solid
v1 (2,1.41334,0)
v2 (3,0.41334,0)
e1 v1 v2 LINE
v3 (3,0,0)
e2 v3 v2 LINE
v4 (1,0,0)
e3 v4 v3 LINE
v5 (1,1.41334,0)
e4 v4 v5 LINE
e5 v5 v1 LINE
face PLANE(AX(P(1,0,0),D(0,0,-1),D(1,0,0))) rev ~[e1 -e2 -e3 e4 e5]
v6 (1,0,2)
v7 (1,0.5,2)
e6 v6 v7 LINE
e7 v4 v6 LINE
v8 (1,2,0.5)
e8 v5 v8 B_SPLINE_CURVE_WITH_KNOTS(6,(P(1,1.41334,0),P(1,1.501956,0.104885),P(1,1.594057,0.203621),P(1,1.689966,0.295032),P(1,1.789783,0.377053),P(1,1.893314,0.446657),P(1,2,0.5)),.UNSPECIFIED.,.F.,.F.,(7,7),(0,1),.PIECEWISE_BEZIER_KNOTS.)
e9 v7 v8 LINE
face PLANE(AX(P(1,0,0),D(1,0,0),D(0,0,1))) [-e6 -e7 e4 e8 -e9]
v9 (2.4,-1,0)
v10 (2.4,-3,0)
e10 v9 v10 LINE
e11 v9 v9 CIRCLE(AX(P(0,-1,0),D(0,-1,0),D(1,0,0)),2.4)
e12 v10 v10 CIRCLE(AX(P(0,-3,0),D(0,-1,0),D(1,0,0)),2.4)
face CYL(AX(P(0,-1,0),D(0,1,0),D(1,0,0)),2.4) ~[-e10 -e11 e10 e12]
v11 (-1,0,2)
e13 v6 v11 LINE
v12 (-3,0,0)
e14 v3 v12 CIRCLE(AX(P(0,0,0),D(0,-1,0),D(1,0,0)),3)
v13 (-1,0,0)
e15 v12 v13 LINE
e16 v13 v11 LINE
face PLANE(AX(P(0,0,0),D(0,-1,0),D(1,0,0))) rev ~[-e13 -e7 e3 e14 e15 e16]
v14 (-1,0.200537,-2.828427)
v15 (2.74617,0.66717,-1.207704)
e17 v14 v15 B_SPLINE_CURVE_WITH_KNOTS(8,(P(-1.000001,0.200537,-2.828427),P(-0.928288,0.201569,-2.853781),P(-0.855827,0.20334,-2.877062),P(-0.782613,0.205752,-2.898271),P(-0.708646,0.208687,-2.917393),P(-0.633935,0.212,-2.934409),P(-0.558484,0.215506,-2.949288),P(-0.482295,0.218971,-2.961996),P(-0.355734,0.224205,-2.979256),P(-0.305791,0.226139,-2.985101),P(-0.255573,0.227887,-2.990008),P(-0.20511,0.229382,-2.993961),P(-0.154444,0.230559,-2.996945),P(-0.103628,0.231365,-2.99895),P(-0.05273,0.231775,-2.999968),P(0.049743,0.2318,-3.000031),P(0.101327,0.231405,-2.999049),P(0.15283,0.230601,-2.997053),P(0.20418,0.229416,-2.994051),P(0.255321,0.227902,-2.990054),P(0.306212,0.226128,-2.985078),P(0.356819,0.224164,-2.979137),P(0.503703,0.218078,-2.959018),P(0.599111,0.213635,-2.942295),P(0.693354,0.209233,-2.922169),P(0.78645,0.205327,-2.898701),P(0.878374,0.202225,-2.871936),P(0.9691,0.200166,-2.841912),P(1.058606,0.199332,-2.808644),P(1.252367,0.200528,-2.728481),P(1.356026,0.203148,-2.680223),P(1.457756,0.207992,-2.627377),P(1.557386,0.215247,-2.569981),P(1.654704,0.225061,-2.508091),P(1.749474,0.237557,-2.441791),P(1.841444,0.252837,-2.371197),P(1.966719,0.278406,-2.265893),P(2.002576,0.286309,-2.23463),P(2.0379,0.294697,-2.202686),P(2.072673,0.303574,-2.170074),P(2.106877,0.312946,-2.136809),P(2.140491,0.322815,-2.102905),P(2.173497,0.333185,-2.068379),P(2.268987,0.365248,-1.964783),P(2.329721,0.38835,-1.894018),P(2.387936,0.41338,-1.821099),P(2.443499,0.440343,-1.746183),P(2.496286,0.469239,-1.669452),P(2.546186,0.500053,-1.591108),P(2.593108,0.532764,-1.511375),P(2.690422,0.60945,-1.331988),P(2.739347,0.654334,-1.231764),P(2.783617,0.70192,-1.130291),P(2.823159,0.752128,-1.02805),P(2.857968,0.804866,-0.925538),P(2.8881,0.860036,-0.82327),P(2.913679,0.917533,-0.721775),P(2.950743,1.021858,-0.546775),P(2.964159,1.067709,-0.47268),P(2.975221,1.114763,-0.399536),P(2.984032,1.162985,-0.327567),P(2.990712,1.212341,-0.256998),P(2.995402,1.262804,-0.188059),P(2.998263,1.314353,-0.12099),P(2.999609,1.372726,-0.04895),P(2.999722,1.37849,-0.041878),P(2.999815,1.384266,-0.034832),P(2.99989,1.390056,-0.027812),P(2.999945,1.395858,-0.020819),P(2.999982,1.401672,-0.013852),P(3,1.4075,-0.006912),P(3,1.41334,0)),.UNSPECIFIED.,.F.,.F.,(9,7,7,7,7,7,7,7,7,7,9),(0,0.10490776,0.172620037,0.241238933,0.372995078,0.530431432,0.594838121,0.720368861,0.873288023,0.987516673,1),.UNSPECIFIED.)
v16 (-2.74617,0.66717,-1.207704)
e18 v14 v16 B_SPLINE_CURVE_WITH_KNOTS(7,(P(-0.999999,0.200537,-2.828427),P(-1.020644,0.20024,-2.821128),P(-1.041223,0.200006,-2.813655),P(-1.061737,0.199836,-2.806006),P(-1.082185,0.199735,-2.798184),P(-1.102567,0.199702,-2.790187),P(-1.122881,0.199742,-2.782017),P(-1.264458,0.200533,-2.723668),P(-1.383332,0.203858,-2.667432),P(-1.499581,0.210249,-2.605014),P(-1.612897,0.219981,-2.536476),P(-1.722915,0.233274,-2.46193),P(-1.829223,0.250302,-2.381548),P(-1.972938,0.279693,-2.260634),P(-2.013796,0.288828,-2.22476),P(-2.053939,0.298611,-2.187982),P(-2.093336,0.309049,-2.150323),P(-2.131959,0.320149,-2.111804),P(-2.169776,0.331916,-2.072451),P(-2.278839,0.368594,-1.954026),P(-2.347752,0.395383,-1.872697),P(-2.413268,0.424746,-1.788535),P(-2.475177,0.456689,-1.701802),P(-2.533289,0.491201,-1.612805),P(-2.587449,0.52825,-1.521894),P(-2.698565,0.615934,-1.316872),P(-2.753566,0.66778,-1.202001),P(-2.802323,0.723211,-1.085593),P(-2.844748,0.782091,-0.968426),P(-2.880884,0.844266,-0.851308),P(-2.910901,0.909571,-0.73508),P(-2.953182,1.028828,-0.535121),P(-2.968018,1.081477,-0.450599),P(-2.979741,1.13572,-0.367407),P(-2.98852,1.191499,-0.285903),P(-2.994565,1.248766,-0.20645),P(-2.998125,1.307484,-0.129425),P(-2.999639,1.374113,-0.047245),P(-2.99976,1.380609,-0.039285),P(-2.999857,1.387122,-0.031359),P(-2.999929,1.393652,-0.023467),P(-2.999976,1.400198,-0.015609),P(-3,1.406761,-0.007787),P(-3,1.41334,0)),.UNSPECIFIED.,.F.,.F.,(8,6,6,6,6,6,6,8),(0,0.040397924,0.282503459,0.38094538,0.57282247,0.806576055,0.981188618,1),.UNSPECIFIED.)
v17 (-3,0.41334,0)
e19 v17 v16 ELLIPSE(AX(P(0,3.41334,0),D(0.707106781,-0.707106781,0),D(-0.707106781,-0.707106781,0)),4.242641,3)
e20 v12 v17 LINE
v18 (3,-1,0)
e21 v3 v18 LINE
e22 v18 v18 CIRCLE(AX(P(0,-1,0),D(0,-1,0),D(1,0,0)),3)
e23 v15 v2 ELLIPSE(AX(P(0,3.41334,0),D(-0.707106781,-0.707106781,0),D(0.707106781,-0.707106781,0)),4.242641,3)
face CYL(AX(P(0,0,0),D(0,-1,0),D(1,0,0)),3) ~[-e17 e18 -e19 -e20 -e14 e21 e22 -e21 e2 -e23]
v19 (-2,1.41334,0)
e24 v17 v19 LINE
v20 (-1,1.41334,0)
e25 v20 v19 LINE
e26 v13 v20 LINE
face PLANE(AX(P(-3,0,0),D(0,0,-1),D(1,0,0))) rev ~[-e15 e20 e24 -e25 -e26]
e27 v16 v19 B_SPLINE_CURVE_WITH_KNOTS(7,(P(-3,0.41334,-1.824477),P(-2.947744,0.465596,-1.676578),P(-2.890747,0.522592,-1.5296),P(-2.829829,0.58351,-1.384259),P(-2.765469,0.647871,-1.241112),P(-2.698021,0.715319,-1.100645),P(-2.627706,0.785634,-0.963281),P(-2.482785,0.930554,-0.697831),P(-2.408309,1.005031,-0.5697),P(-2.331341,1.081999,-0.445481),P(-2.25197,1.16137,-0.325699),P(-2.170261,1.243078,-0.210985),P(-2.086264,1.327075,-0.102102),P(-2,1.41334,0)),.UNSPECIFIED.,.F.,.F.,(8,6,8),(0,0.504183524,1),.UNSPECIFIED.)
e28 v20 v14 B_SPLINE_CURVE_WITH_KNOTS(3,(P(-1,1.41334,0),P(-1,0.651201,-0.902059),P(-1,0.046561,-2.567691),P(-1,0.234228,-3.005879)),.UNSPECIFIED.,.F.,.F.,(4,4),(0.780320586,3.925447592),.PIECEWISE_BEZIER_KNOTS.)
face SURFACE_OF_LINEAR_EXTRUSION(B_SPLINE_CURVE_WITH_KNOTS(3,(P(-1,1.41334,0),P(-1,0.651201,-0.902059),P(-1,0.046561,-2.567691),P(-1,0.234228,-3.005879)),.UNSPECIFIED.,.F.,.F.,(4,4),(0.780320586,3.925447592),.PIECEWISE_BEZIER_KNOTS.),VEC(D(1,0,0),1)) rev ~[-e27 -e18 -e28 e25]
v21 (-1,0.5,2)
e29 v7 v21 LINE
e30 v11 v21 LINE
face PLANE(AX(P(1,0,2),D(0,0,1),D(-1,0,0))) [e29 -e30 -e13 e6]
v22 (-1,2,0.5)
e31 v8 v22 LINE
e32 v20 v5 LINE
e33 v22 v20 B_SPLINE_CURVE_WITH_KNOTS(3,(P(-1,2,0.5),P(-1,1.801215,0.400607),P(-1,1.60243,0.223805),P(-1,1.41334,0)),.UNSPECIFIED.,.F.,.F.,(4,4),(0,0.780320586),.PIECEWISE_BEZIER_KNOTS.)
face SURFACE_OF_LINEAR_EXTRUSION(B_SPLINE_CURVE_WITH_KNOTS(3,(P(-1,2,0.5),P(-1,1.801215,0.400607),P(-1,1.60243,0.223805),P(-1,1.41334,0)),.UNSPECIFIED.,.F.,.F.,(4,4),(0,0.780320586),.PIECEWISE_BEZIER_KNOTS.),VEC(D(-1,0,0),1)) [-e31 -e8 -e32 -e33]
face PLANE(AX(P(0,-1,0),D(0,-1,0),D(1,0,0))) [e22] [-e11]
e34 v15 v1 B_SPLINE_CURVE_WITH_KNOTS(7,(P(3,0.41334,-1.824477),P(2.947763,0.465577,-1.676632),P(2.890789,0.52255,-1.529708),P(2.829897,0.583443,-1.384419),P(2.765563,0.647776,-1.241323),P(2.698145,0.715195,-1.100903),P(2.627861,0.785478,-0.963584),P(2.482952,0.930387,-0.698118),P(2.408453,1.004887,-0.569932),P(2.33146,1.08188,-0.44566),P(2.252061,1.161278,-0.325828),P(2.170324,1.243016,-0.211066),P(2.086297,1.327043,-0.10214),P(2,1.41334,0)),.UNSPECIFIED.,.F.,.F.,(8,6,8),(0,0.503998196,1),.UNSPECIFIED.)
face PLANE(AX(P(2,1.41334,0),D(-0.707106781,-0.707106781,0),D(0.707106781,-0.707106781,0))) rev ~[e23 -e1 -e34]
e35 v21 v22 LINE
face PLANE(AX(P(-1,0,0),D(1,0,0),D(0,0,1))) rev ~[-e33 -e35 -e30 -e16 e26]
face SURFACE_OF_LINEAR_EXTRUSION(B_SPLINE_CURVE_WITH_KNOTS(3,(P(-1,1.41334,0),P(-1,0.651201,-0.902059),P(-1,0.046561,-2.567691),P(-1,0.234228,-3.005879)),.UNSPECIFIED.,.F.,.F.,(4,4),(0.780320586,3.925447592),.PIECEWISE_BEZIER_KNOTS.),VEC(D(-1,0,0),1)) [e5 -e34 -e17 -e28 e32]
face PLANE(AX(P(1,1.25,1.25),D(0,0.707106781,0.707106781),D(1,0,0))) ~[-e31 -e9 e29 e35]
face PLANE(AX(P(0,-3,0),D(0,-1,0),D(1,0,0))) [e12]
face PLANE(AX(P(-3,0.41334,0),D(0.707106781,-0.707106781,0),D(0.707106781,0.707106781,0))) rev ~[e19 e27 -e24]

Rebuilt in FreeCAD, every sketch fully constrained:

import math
import FreeCAD as App
import Part
import Sketcher
from FreeCAD import Vector
Q = App.Units.Quantity


def edges_at(feature, points):
    """Names of the edges that pass closest to the given points."""
    edges = feature.Shape.Edges
    near = lambda p: min(range(len(edges)), key=lambda i: edges[i].distToShape(Part.Vertex(*p))[0])
    return sorted({f"Edge{near(p) + 1}" for p in points})


def add_polygon(sketch, points):
    """Adds a closed chain of lines whose ends are joined by coincident constraints."""
    first, n = sketch.GeometryCount, len(points)
    for a, b in zip(points, points[1:] + points[:1]):
        sketch.addGeometry(Part.LineSegment(App.Vector(*a, 0), App.Vector(*b, 0)), False)
    for i in range(n):
        sketch.addConstraint(Sketcher.Constraint("Coincident", first + i, 2, first + (i + 1) % n, 1))

doc = App.newDocument("Part")
body = doc.addObject("PartDesign::Body", "Body")

# Sketch on XZ plane
sketch1 = body.newObject("Sketcher::SketchObject", "Sketch")
sketch1.AttachmentSupport = (doc.getObject("XZ_Plane"), [""])
sketch1.MapMode = "FlatFace"
sketch1.addGeometry(Part.Circle(Vector(0, 0, 0), Vector(0, 0, 1), 3), False)
sketch1.addConstraint([
    Sketcher.Constraint("Coincident", 0, 3, -1, 1),
    Sketcher.Constraint("Diameter", 0, Q("6 mm")),
])
pad1 = body.newObject("PartDesign::Pad", "Pad")
pad1.Profile = sketch1
pad1.Length = 1

# Sketch on XZ plane
sketch2 = body.newObject("Sketcher::SketchObject", "Sketch001")
sketch2.AttachmentSupport = (doc.getObject("XZ_Plane"), [""])
sketch2.MapMode = "FlatFace"
sketch2.AttachmentOffset = App.Placement(Vector(0, 0, 1), App.Rotation())
sketch2.addGeometry(Part.Circle(Vector(0, 0, 0), Vector(0, 0, 1), 2.4), False)
sketch2.addConstraint([
    Sketcher.Constraint("Coincident", 0, 3, -1, 1),
    Sketcher.Constraint("Diameter", 0, Q("4.8 mm")),
])
pad2 = body.newObject("PartDesign::Pad", "Pad001")
pad2.Profile = sketch2
pad2.Length = 2

# Sketch on XZ plane
sketch3 = body.newObject("Sketcher::SketchObject", "Sketch002")
sketch3.AttachmentSupport = (doc.getObject("XZ_Plane"), [""])
sketch3.MapMode = "FlatFace"
sketch3.addGeometry([
    Part.LineSegment(Vector(1, 2, 0), Vector(1, 0, 0)),  # 0
    Part.LineSegment(Vector(1, 0, 0), Vector(3, 0, 0)),  # 1
    Part.ArcOfCircle(Part.Circle(Vector(0, 0, 0), Vector(0, 0, 1), 3), math.radians(180), math.radians(360)),  # 2
    Part.LineSegment(Vector(-3, 0, 0), Vector(-1, 0, 0)),  # 3
    Part.LineSegment(Vector(-1, 0, 0), Vector(-1, 2, 0)),  # 4
    Part.LineSegment(Vector(-1, 2, 0), Vector(1, 2, 0)),  # 5
], False)
sketch3.addConstraint([
    Sketcher.Constraint("Coincident", 0, 2, 1, 1),
    Sketcher.Constraint("Coincident", 1, 2, 2, 2),
    Sketcher.Constraint("Coincident", 2, 1, 3, 1),
    Sketcher.Constraint("Coincident", 3, 2, 4, 1),
    Sketcher.Constraint("Coincident", 4, 2, 5, 1),
    Sketcher.Constraint("Coincident", 5, 2, 0, 1),
    Sketcher.Constraint("Vertical", 0),
    Sketcher.Constraint("Horizontal", 1),
    Sketcher.Constraint("Horizontal", 3),
    Sketcher.Constraint("Vertical", 4),
    Sketcher.Constraint("Horizontal", 5),
    Sketcher.Constraint("Coincident", 2, 3, -1, 1),
    Sketcher.Constraint("Symmetric", 0, 2, 3, 2, -1, 1),
    Sketcher.Constraint("PointOnObject", 0, 2, -1),
    Sketcher.Constraint("Equal", 3, 5),
    Sketcher.Constraint("Equal", 5, 0),
    Sketcher.Constraint("Radius", 2, Q("3 mm")),
])
pad3 = body.newObject("PartDesign::Pad", "Pad002")
pad3.Profile = sketch3
pad3.Length = 2
pad3.Reversed = True
doc.recompute()

chamfer = body.newObject("PartDesign::Chamfer", "Chamfer")
chamfer.Base = (pad3, edges_at(pad3, [(0, 2, 2)]))
chamfer.Size = 1.5

# Sketch on YZ plane
sketch4 = body.newObject("Sketcher::SketchObject", "Sketch003")
sketch4.AttachmentSupport = (doc.getObject("YZ_Plane"), [""])
sketch4.MapMode = "FlatFace"
sketch4.AttachmentOffset = App.Placement(Vector(0, 0, -1), App.Rotation())
sketch4.addGeometry([
    Part.BSplineCurve([Vector(2, 0.5, 0), Vector(1.801215, 0.400607, 0), Vector(1.60243, 0.223805, 0), Vector(1.41334, 0, 0)], [4, 4], [0, 0.780320586], False, 3, [1, 1, 1, 1], False),
    Part.LineSegment(Vector(2, 0.5, 0), Vector(2, -3.005879, 0)),
    Part.LineSegment(Vector(2, -3.005879, 0), Vector(0.234228, -3.005879, 0)),
    Part.BSplineCurve([Vector(1.41334, 0, 0), Vector(0.651201, -0.902059, 0), Vector(0.046561, -2.567691, 0), Vector(0.234228, -3.005879, 0)], [4, 4], [0.780320586, 3.925447592], False, 3, [1, 1, 1, 1], False),
], False)
sketch4.addConstraint([
    Sketcher.Constraint("Block", 0),
    Sketcher.Constraint("Block", 3),
    Sketcher.Constraint("Coincident", 0, 1, 1, 1),
    Sketcher.Constraint("Coincident", 1, 2, 2, 1),
    Sketcher.Constraint("Coincident", 2, 2, 3, 2),
    Sketcher.Constraint("Vertical", 1),
    Sketcher.Constraint("Horizontal", 2),
])
pocket1 = body.newObject("PartDesign::Pocket", "Pocket")
pocket1.Profile = sketch4
pocket1.Type = "ThroughAll"
pocket1.Midplane = True

# Sketch on XY plane
sketch5 = body.newObject("Sketcher::SketchObject", "Sketch004")
sketch5.AttachmentSupport = (doc.getObject("XY_Plane"), [""])
sketch5.MapMode = "FlatFace"
add_polygon(sketch5, [(-2, 1.41334), (-3, 1.41334), (-3, 0.41334)])  # lines 0-2
add_polygon(sketch5, [(3, 0.41334), (3, 1.41334), (2, 1.41334)])  # lines 3-5
sketch5.addConstraint([
    Sketcher.Constraint("Horizontal", 0),
    Sketcher.Constraint("Vertical", 1),
    Sketcher.Constraint("Vertical", 3),
    Sketcher.Constraint("Horizontal", 4),
    Sketcher.Constraint("Symmetric", 0, 2, 3, 2, -2),
    Sketcher.Constraint("Perpendicular", 2, 5),
    Sketcher.Constraint("Horizontal", 1, 2, 5, 2),
    Sketcher.Constraint("Equal", 0, 4),
    Sketcher.Constraint("DistanceX", 0, 2, 0, 1, Q("1 mm")),
    Sketcher.Constraint("DistanceX", 0, 2, -1, 1, Q("3 mm")),
    Sketcher.Constraint("DistanceY", -1, 1, 0, 2, Q("1.41334 mm")),
])
pocket2 = body.newObject("PartDesign::Pocket", "Pocket001")
pocket2.Profile = sketch5
pocket2.Length = 25

doc.recompute()
